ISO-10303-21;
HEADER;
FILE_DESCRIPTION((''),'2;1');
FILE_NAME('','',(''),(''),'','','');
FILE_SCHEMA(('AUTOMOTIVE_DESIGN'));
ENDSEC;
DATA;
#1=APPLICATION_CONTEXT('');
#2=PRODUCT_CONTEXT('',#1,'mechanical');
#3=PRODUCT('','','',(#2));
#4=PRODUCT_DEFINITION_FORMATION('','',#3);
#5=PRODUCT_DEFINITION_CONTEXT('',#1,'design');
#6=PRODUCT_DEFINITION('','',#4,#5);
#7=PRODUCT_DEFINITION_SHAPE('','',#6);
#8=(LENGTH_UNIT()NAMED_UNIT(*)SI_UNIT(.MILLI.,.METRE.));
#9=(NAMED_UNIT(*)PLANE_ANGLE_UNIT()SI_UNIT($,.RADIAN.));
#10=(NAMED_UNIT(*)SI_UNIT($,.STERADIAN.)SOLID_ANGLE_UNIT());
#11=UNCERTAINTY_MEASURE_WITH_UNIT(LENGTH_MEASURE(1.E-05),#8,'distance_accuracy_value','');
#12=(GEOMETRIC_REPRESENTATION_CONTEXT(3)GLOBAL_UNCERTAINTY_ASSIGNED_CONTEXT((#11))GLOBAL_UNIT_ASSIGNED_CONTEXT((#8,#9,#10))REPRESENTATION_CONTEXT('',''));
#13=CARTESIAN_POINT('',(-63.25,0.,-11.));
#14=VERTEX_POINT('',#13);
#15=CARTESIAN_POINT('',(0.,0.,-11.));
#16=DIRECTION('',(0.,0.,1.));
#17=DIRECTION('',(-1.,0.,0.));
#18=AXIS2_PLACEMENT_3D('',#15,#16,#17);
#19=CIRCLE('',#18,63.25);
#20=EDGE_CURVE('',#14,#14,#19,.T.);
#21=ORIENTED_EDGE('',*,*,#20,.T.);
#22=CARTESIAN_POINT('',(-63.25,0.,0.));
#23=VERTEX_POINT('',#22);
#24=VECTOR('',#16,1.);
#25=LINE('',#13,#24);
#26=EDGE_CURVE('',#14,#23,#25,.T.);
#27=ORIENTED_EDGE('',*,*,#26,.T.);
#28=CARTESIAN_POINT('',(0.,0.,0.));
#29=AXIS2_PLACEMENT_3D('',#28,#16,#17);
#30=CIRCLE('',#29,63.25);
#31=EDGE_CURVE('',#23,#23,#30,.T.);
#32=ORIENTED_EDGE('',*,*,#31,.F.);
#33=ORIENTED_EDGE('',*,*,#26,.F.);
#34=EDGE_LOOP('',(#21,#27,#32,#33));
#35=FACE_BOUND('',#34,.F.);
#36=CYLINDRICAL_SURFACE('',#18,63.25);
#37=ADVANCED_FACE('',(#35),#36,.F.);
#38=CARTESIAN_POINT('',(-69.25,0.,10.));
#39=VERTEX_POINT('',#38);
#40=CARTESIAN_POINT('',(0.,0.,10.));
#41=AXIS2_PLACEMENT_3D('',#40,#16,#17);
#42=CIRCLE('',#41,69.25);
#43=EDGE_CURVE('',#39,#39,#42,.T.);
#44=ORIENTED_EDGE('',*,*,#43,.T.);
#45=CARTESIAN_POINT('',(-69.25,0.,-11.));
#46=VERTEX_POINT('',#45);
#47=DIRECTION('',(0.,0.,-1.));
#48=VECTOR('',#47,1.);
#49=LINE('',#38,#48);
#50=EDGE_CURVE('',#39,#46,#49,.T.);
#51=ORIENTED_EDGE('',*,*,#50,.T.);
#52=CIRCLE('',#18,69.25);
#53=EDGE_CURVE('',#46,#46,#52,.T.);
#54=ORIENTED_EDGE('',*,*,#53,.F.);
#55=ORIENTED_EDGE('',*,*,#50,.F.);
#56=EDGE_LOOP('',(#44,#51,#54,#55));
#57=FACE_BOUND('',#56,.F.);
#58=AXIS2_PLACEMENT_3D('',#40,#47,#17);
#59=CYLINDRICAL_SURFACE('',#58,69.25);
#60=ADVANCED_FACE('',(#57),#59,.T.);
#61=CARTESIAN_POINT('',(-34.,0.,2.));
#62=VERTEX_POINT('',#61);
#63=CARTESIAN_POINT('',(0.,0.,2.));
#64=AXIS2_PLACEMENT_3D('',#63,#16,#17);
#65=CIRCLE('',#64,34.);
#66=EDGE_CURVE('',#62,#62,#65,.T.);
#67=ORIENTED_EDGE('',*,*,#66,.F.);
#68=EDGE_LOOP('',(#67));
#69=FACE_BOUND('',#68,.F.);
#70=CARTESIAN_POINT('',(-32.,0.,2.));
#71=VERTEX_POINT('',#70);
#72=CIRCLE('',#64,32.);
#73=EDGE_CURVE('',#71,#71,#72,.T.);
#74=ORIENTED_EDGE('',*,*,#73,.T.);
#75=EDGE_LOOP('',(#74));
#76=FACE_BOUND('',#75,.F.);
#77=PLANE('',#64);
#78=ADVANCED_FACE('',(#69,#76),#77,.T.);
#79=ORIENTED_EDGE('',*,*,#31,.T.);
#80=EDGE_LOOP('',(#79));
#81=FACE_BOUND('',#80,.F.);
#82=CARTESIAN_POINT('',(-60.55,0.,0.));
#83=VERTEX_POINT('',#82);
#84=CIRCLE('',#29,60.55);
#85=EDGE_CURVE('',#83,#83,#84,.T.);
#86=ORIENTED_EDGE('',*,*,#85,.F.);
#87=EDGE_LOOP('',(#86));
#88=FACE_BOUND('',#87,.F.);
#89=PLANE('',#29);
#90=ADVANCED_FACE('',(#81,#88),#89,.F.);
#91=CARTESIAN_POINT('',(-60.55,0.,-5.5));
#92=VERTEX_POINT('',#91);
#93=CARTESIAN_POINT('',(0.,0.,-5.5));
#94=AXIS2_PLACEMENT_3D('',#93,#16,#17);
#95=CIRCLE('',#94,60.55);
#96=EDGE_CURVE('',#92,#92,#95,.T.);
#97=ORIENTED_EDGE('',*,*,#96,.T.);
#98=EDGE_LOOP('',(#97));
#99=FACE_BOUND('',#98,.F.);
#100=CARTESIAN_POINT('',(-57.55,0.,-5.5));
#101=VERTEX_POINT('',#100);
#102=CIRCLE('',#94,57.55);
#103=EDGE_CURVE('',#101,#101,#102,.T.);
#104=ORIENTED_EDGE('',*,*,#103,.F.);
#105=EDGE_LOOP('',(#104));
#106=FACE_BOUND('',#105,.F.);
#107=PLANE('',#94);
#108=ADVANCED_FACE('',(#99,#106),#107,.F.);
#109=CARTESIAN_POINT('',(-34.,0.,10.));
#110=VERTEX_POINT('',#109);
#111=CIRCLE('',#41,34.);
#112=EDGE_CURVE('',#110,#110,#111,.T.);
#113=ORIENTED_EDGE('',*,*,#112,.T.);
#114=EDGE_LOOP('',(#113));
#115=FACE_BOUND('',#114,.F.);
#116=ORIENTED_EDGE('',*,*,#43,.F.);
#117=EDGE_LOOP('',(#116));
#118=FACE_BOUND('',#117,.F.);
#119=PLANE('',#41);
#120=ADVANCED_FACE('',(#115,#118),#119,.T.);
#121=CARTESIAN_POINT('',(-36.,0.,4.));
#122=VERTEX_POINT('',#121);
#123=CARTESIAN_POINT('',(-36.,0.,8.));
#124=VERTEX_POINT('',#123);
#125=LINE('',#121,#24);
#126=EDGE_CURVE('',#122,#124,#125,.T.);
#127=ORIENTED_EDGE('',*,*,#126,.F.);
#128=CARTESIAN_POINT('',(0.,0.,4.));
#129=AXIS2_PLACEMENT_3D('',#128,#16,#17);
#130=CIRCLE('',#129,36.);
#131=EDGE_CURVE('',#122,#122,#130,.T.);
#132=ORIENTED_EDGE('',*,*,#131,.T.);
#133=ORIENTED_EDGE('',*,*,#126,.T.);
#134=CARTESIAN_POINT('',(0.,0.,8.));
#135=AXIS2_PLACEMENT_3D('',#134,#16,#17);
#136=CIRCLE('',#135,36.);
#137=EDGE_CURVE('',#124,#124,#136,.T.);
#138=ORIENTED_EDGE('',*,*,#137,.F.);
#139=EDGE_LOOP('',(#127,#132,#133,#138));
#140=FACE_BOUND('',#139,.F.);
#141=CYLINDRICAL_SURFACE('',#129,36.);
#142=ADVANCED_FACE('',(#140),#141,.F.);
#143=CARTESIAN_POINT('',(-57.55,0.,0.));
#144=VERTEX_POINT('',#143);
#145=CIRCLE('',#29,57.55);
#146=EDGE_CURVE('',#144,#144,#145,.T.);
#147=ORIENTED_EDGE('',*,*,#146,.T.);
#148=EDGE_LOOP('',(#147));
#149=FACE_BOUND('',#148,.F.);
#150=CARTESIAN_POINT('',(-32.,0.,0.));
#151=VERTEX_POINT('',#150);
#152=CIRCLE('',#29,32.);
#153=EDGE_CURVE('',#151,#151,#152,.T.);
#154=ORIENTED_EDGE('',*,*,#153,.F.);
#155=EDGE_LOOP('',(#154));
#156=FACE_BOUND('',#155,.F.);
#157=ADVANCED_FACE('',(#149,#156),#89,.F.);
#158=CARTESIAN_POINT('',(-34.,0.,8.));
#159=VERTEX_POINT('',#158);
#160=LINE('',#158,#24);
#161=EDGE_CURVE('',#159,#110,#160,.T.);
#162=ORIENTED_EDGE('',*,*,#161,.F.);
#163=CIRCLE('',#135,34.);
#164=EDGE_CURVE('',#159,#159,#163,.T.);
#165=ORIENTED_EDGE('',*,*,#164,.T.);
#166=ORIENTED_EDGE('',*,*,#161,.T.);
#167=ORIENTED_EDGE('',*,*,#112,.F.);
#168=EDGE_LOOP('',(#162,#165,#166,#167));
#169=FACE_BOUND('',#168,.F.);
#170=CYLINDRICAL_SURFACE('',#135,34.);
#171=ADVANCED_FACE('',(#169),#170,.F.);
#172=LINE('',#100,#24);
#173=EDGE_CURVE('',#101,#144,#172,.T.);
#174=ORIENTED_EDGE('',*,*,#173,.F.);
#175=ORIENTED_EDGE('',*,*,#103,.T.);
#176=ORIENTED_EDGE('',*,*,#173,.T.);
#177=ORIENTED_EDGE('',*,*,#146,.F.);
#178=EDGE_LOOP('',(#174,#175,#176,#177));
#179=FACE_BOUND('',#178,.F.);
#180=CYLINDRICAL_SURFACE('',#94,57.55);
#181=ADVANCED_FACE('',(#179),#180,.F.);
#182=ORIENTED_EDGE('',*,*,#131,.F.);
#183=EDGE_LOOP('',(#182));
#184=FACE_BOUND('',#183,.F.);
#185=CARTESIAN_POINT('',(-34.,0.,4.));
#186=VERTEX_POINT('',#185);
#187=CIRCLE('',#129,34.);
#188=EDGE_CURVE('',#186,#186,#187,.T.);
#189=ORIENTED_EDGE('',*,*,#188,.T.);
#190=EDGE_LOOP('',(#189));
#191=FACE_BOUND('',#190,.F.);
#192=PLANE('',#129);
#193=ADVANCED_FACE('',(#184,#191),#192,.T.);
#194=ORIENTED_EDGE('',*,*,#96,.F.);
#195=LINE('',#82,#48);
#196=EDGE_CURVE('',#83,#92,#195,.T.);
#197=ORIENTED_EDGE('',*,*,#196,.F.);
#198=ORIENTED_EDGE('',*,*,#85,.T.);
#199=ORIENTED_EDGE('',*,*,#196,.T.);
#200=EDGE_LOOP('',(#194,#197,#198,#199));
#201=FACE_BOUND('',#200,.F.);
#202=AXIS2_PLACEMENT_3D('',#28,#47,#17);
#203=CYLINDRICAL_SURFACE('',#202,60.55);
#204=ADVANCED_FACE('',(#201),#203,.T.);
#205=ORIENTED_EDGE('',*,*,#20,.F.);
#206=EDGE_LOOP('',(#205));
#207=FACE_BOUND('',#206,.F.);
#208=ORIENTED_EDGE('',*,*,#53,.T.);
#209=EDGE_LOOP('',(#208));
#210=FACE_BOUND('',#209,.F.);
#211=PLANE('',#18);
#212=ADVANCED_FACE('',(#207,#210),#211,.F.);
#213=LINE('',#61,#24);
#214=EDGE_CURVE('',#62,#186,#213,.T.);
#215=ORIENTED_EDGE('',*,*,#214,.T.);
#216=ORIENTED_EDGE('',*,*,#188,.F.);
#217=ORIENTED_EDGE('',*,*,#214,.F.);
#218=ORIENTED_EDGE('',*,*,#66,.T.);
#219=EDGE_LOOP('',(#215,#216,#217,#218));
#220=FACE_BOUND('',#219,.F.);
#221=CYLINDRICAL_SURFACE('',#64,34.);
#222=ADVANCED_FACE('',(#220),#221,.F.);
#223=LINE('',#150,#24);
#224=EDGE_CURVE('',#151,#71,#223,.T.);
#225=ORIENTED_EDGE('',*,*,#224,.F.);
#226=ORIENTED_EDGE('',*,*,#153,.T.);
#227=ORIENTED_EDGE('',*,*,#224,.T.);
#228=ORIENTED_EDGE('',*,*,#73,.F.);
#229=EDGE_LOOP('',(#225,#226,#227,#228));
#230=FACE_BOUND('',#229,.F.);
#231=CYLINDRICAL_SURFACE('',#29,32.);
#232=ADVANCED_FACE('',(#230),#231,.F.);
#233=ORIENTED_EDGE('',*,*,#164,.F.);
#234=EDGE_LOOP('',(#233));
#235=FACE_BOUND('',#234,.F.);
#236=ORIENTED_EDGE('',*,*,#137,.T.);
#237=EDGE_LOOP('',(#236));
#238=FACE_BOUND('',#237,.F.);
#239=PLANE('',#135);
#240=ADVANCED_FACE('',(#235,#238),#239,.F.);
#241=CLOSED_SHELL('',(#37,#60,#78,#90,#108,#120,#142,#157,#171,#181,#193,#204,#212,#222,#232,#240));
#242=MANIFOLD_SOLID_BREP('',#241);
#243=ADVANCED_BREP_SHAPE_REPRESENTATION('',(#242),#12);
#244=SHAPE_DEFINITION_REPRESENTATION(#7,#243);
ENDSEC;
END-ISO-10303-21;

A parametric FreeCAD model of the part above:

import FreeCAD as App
import Part
import Sketcher

V = App.Vector
Q = App.Units.Quantity


def add_polygon(sketch, points):
    """Adds a closed chain of lines whose ends are joined by coincident constraints."""
    first, n = sketch.GeometryCount, len(points)
    for a, b in zip(points, points[1:] + points[:1]):
        sketch.addGeometry(Part.LineSegment(App.Vector(*a, 0), App.Vector(*b, 0)), False)
    for i in range(n):
        sketch.addConstraint(Sketcher.Constraint("Coincident", first + i, 2, first + (i + 1) % n, 1))

doc = App.newDocument("Part")
body = doc.addObject("PartDesign::Body", "Body")

sketch1 = body.newObject("Sketcher::SketchObject", "Sketch")
sketch1.AttachmentSupport = (doc.getObject("XZ_Plane"), [""])
sketch1.MapMode = "FlatFace"
add_polygon(sketch1, [(-32, 0), (-32, 2), (-34, 2), (-34, 4), (-36, 4), (-36, 8), (-34, 8), (-34, 10), (-69.25, 10), (-69.25, -11), (-63.25, -11), (-63.25, 0), (-60.55, 0), (-60.55, -5.5), (-57.55, -5.5), (-57.55, 0)])
sketch1.addConstraint([
    Sketcher.Constraint("Vertical", 0),
    Sketcher.Constraint("Horizontal", 1),
    Sketcher.Constraint("Vertical", 2),
    Sketcher.Constraint("Horizontal", 3),
    Sketcher.Constraint("Vertical", 4),
    Sketcher.Constraint("Horizontal", 5),
    Sketcher.Constraint("Vertical", 6),
    Sketcher.Constraint("Horizontal", 7),
    Sketcher.Constraint("Vertical", 8),
    Sketcher.Constraint("Horizontal", 9),
    Sketcher.Constraint("Vertical", 10),
    Sketcher.Constraint("Horizontal", 11),
    Sketcher.Constraint("Vertical", 12),
    Sketcher.Constraint("Horizontal", 13),
    Sketcher.Constraint("Vertical", 14),
    Sketcher.Constraint("Horizontal", 15),
    Sketcher.Constraint("PointOnObject", 10, 2, -1),
    Sketcher.Constraint("PointOnObject", 14, 2, -1),
    Sketcher.Constraint("Vertical", 2, 2, 5, 2),
    Sketcher.Constraint("Equal", 1, 3),
    Sketcher.Constraint("Equal", 5, 0),
    Sketcher.Constraint("Equal", 0, 2),
    Sketcher.Constraint("Equal", 2, 6),
    Sketcher.Constraint("DistanceX", 1, 2, 1, 1, Q("2 mm")),
    Sketcher.Constraint("DistanceX", 9, 1, 9, 2, Q("6 mm")),
    Sketcher.Constraint("DistanceX", 13, 1, 13, 2, Q("3 mm")),
    Sketcher.Constraint("DistanceY", 4, 1, 4, 2, Q("4 mm")),
    Sketcher.Constraint("DistanceY", 8, 2, 8, 1, Q("21 mm")),
    Sketcher.Constraint("DistanceX", 11, 1, 11, 2, Q("2.7 mm")),
    Sketcher.Constraint("DistanceY", 12, 2, 12, 1, Q("5.5 mm")),
    Sketcher.Constraint("DistanceX", 0, 2, -1, 1, Q("32 mm")),
    Sketcher.Constraint("DistanceX", 7, 2, 7, 1, Q("35.25 mm")),
])
revolution = body.newObject("PartDesign::Revolution", "Revolution")
revolution.Profile = sketch1
revolution.ReferenceAxis = (sketch1, ["V_Axis"])
revolution.Angle = 360

doc.recompute()
